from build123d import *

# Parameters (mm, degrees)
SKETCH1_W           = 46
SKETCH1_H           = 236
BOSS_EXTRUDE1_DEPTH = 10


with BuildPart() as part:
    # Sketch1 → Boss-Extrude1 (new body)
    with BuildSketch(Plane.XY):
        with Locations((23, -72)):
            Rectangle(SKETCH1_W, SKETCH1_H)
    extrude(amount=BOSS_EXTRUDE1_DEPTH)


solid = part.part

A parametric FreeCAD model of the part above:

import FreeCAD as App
import Part
import Sketcher
from FreeCAD import Vector
Q = App.Units.Quantity

doc = App.newDocument("Part")
body = doc.addObject("PartDesign::Body", "Body")

# Sketch on XY plane
sketch1 = body.newObject("Sketcher::SketchObject", "Sketch")
sketch1.AttachmentSupport = (doc.getObject("XY_Plane"), [""])
sketch1.MapMode = "FlatFace"
sketch1.addGeometry([
    Part.LineSegment(Vector(0, 46, 0), Vector(0, -190, 0)),
    Part.LineSegment(Vector(0, -190, 0), Vector(46, -190, 0)),
    Part.LineSegment(Vector(46, -190, 0), Vector(46, 46, 0)),
    Part.LineSegment(Vector(46, 46, 0), Vector(0, 46, 0)),
], False)
sketch1.addConstraint([
    Sketcher.Constraint("Coincident", 0, 2, 1, 1),
    Sketcher.Constraint("Coincident", 1, 2, 2, 1),
    Sketcher.Constraint("Coincident", 2, 2, 3, 1),
    Sketcher.Constraint("Coincident", 3, 2, 0, 1),
    Sketcher.Constraint("Vertical", 0),
    Sketcher.Constraint("Horizontal", 1),
    Sketcher.Constraint("Vertical", 2),
    Sketcher.Constraint("Horizontal", 3),
    Sketcher.Constraint("PointOnObject", 0, 2, -2),
    Sketcher.Constraint("DistanceX", 1, 1, 1, 2, Q("46 mm")),
    Sketcher.Constraint("DistanceY", 0, 2, 0, 1, Q("236 mm")),
    Sketcher.Constraint("DistanceY", 0, 2, -1, 1, Q("190 mm")),
])
pad1 = body.newObject("PartDesign::Pad", "Pad")
pad1.Profile = sketch1
pad1.Length = 10

doc.recompute()
